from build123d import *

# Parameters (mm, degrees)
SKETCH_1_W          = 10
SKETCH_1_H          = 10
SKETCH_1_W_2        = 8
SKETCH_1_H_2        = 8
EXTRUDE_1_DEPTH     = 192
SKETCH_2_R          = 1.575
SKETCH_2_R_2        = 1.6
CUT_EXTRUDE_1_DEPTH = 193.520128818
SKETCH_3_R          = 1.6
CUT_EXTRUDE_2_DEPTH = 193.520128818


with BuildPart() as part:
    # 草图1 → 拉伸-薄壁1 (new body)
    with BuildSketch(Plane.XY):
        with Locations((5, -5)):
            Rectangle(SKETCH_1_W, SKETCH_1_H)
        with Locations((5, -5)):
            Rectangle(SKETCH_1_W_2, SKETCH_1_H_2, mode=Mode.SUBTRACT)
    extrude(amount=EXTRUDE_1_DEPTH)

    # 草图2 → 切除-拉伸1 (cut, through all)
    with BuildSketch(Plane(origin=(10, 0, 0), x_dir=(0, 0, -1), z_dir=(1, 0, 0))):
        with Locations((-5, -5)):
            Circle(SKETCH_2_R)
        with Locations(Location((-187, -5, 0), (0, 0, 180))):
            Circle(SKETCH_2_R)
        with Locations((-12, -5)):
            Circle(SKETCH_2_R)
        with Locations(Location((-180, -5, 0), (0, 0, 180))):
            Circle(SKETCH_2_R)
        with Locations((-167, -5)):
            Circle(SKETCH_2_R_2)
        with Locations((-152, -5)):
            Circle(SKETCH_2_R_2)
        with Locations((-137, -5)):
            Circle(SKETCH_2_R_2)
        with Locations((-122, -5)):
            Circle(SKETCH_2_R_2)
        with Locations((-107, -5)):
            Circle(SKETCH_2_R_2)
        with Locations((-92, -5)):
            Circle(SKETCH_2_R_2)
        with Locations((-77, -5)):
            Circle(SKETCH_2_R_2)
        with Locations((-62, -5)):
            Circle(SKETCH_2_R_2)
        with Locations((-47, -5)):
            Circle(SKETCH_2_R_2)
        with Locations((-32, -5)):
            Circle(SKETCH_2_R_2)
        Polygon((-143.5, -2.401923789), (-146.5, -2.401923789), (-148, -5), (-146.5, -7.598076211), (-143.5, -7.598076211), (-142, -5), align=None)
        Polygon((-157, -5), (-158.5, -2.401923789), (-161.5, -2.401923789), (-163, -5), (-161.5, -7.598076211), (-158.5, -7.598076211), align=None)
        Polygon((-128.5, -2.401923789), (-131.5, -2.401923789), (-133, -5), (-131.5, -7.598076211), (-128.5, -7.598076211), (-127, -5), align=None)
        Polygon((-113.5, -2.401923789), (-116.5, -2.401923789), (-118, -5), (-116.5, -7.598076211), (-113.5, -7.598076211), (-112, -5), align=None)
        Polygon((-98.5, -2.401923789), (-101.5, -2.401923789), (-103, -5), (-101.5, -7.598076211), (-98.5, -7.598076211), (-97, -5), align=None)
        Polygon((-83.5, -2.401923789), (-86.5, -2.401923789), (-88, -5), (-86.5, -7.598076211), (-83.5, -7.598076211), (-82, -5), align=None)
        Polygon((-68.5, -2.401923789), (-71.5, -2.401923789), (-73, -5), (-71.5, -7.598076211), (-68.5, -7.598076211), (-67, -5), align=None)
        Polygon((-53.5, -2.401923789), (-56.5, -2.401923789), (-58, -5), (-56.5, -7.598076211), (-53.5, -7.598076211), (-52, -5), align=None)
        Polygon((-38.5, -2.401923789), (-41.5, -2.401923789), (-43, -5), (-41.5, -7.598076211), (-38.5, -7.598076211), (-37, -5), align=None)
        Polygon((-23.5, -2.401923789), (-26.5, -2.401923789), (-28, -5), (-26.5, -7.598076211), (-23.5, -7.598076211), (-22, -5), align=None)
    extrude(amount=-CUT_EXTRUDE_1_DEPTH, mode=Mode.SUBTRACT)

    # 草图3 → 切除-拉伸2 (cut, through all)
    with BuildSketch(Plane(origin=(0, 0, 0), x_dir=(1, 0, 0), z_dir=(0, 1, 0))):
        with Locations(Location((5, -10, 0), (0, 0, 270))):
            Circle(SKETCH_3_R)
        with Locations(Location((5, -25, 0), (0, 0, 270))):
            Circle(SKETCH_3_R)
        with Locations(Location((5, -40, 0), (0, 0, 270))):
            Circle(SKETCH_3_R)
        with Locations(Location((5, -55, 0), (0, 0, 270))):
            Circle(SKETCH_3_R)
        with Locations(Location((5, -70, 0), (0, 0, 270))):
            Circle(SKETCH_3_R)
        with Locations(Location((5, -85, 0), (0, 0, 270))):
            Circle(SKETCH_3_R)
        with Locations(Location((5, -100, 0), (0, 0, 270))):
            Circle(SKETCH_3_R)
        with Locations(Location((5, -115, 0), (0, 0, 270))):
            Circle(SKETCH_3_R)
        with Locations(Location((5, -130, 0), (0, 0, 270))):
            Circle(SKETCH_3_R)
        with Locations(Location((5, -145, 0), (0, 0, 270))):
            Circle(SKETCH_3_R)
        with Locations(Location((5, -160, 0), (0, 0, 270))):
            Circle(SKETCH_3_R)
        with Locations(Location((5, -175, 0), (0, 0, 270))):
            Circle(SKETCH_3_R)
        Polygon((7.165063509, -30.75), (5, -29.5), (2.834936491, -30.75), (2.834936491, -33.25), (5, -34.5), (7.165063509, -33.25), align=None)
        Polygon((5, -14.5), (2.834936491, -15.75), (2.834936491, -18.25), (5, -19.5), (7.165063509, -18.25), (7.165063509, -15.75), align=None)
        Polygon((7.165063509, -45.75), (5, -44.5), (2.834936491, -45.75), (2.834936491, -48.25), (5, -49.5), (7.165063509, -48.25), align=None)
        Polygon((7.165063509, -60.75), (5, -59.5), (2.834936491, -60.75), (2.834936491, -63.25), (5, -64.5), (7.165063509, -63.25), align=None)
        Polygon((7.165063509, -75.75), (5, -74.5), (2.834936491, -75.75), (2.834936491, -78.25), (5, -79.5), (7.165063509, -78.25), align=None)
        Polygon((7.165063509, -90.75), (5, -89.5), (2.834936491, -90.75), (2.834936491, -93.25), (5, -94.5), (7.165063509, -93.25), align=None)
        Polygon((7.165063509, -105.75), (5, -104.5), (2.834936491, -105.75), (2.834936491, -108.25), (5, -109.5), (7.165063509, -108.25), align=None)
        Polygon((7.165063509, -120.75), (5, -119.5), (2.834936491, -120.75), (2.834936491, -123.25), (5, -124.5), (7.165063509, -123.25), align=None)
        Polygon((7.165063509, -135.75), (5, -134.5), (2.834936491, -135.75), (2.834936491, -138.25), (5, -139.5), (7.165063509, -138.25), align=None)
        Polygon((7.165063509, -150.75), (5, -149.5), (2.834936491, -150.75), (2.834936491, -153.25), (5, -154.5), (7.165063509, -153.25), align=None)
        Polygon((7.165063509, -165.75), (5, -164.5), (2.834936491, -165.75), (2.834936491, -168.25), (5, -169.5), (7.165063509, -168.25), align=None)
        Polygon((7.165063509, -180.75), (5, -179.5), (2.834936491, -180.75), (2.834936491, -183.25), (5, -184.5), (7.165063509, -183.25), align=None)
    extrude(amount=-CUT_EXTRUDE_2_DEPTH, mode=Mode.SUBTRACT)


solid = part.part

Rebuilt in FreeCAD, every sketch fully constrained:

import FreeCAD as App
import Part
import Sketcher
from FreeCAD import Vector
Q = App.Units.Quantity


def add_polygon(sketch, points):
    """Adds a closed chain of lines whose ends are joined by coincident constraints."""
    first, n = sketch.GeometryCount, len(points)
    for a, b in zip(points, points[1:] + points[:1]):
        sketch.addGeometry(Part.LineSegment(App.Vector(*a, 0), App.Vector(*b, 0)), False)
    for i in range(n):
        sketch.addConstraint(Sketcher.Constraint("Coincident", first + i, 2, first + (i + 1) % n, 1))

doc = App.newDocument("Part")
params = doc.addObject("Spreadsheet::Sheet", "Params")
for row, (alias, value) in enumerate([
    ("sketch1_width", "10 mm"),
    ("sketch1_width2", "8 mm"),
    ("pad1_length", "192 mm"),
    ("sketch2_diameter", "3.2 mm"),
    ("sketch2_diameter2", "3.15 mm"),
    ("sketch2_height", "3 mm"),
    ("sketch2_length", "3 mm"),
    ("sketch3_diameter", "3.2 mm"),
    ("sketch3_height", "2.5 mm"),
    ("sketch3_length", "2.5 mm"),
], start=1):
    params.set(f"A{row}", alias)
    params.set(f"B{row}", "=" + value)
    params.setAlias(f"B{row}", alias)

body = doc.addObject("PartDesign::Body", "Body")

# Sketch on XY plane
sketch1 = body.newObject("Sketcher::SketchObject", "Sketch")
sketch1.AttachmentSupport = (doc.getObject("XY_Plane"), [""])
sketch1.MapMode = "FlatFace"
add_polygon(sketch1, [(0, 0), (0, -10), (10, -10), (10, 0)])  # lines 0-3
add_polygon(sketch1, [(9, -9), (1, -9), (1, -1), (9, -1)])  # lines 4-7
sketch1.addConstraint([
    Sketcher.Constraint("Vertical", 0),
    Sketcher.Constraint("Horizontal", 1),
    Sketcher.Constraint("Vertical", 2),
    Sketcher.Constraint("Horizontal", 3),
    Sketcher.Constraint("Horizontal", 4),
    Sketcher.Constraint("Vertical", 5),
    Sketcher.Constraint("Horizontal", 6),
    Sketcher.Constraint("Vertical", 7),
    Sketcher.Constraint("Coincident", 3, 2, -1, 1),
    Sketcher.Constraint("Equal", 3, 0),
    Sketcher.Constraint("Equal", 6, 5),
    Sketcher.Constraint("DistanceX", 1, 1, 1, 2, Q("10 mm")),
    Sketcher.Constraint("DistanceX", 4, 2, 4, 1, Q("8 mm")),
    Sketcher.Constraint("DistanceX", -1, 1, 4, 2, Q("1 mm")),
    Sketcher.Constraint("DistanceY", 4, 2, -1, 1, Q("9 mm")),
])
sketch1.setExpression("Constraints[19]", "Params.sketch1_width")
sketch1.setExpression("Constraints[20]", "Params.sketch1_width2")
pad1 = body.newObject("PartDesign::Pad", "Pad")
pad1.Profile = sketch1
pad1.setExpression("Length", "Params.pad1_length")

# Sketch on YZ plane
sketch2 = body.newObject("Sketcher::SketchObject", "Sketch001")
sketch2.AttachmentSupport = (doc.getObject("YZ_Plane"), [""])
sketch2.MapMode = "FlatFace"
sketch2.AttachmentOffset = App.Placement(Vector(0, 0, 10), App.Rotation())
sketch2.addGeometry(Part.Circle(Vector(-5, 5, 0), Vector(0, 0, 1), 1.6), False)  # 0
sketch2.addGeometry(Part.Circle(Vector(-5, 187, 0), Vector(0, 0, 1), 1.6), False)  # 1
sketch2.addGeometry(Part.Circle(Vector(-5, 12, 0), Vector(0, 0, 1), 1.6), False)  # 2
sketch2.addGeometry(Part.Circle(Vector(-5, 180, 0), Vector(0, 0, 1), 1.6), False)  # 3
sketch2.addGeometry(Part.Circle(Vector(-5, 167, 0), Vector(0, 0, 1), 1.6), False)  # 4
sketch2.addGeometry(Part.Circle(Vector(-5, 152, 0), Vector(0, 0, 1), 1.6), False)  # 5
sketch2.addGeometry(Part.Circle(Vector(-5, 137, 0), Vector(0, 0, 1), 1.6), False)  # 6
sketch2.addGeometry(Part.Circle(Vector(-5, 122, 0), Vector(0, 0, 1), 1.6), False)  # 7
sketch2.addGeometry(Part.Circle(Vector(-5, 107, 0), Vector(0, 0, 1), 1.6), False)  # 8
sketch2.addGeometry(Part.Circle(Vector(-5, 92, 0), Vector(0, 0, 1), 1.6), False)  # 9
sketch2.addGeometry(Part.Circle(Vector(-5, 77, 0), Vector(0, 0, 1), 1.6), False)  # 10
sketch2.addGeometry(Part.Circle(Vector(-5, 62, 0), Vector(0, 0, 1), 1.6), False)  # 11
sketch2.addGeometry(Part.Circle(Vector(-5, 47, 0), Vector(0, 0, 1), 1.6), False)  # 12
sketch2.addGeometry(Part.Circle(Vector(-5, 32, 0), Vector(0, 0, 1), 1.6), False)  # 13
add_polygon(sketch2, [(-2.4, 143.5), (-2.4, 146.5), (-5, 148), (-7.6, 146.5), (-7.6, 143.5), (-5, 142)])  # lines 14-19
add_polygon(sketch2, [(-5, 157), (-2.4, 158.5), (-2.4, 161.5), (-5, 163), (-7.6, 161.5), (-7.6, 158.5)])  # lines 20-25
add_polygon(sketch2, [(-2.4, 128.5), (-2.4, 131.5), (-5, 133), (-7.6, 131.5), (-7.6, 128.5), (-5, 127)])  # lines 26-31
add_polygon(sketch2, [(-2.4, 113.5), (-2.4, 116.5), (-5, 118), (-7.6, 116.5), (-7.6, 113.5), (-5, 112)])  # lines 32-37
add_polygon(sketch2, [(-2.4, 98.5), (-2.4, 101.5), (-5, 103), (-7.6, 101.5), (-7.6, 98.5), (-5, 97)])  # lines 38-43
add_polygon(sketch2, [(-2.4, 83.5), (-2.4, 86.5), (-5, 88), (-7.6, 86.5), (-7.6, 83.5), (-5, 82)])  # lines 44-49
add_polygon(sketch2, [(-2.4, 68.5), (-2.4, 71.5), (-5, 73), (-7.6, 71.5), (-7.6, 68.5), (-5, 67)])  # lines 50-55
add_polygon(sketch2, [(-2.4, 53.5), (-2.4, 56.5), (-5, 58), (-7.6, 56.5), (-7.6, 53.5), (-5, 52)])  # lines 56-61
add_polygon(sketch2, [(-2.4, 38.5), (-2.4, 41.5), (-5, 43), (-7.6, 41.5), (-7.6, 38.5), (-5, 37)])  # lines 62-67
add_polygon(sketch2, [(-2.4, 23.5), (-2.4, 26.5), (-5, 28), (-7.6, 26.5), (-7.6, 23.5), (-5, 22)])  # lines 68-73
sketch2.addConstraint([
    Sketcher.Constraint("Vertical", 14),
    Sketcher.Constraint("Vertical", 17),
    Sketcher.Constraint("Vertical", 21),
    Sketcher.Constraint("Vertical", 24),
    Sketcher.Constraint("Vertical", 26),
    Sketcher.Constraint("Vertical", 29),
    Sketcher.Constraint("Vertical", 32),
    Sketcher.Constraint("Vertical", 35),
    Sketcher.Constraint("Vertical", 38),
    Sketcher.Constraint("Vertical", 41),
    Sketcher.Constraint("Vertical", 44),
    Sketcher.Constraint("Vertical", 47),
    Sketcher.Constraint("Vertical", 50),
    Sketcher.Constraint("Vertical", 53),
    Sketcher.Constraint("Vertical", 56),
    Sketcher.Constraint("Vertical", 59),
    Sketcher.Constraint("Vertical", 62),
    Sketcher.Constraint("Vertical", 65),
    Sketcher.Constraint("Vertical", 68),
    Sketcher.Constraint("Vertical", 71),
    Sketcher.Constraint("Equal", 0, 1),
    Sketcher.Constraint("Equal", 1, 2),
    Sketcher.Constraint("Equal", 2, 3),
    Sketcher.Constraint("Equal", 4, 5),
    Sketcher.Constraint("Equal", 5, 6),
    Sketcher.Constraint("Equal", 6, 7),
    Sketcher.Constraint("Equal", 7, 8),
    Sketcher.Constraint("Equal", 8, 9),
    Sketcher.Constraint("Equal", 9, 10),
    Sketcher.Constraint("Equal", 10, 11),
    Sketcher.Constraint("Equal", 11, 12),
    Sketcher.Constraint("Equal", 12, 13),
    Sketcher.Constraint("Parallel", 15, 18),
    Sketcher.Constraint("Parallel", 16, 19),
    Sketcher.Constraint("Parallel", 19, 20),
    Sketcher.Constraint("Parallel", 18, 22),
    Sketcher.Constraint("Parallel", 20, 23),
    Sketcher.Constraint("Parallel", 22, 25),
    Sketcher.Constraint("Parallel", 25, 27),
    Sketcher.Constraint("Parallel", 23, 28),
    Sketcher.Constraint("Parallel", 27, 30),
    Sketcher.Constraint("Parallel", 28, 31),
    Sketcher.Constraint("Parallel", 30, 33),
    Sketcher.Constraint("Parallel", 31, 34),
    Sketcher.Constraint("Parallel", 33, 36),
    Sketcher.Constraint("Parallel", 34, 37),
    Sketcher.Constraint("Parallel", 36, 39),
    Sketcher.Constraint("Parallel", 37, 40),
    Sketcher.Constraint("Parallel", 39, 42),
    Sketcher.Constraint("Parallel", 40, 43),
    Sketcher.Constraint("Parallel", 42, 45),
    Sketcher.Constraint("Parallel", 43, 46),
    Sketcher.Constraint("Parallel", 45, 48),
    Sketcher.Constraint("Parallel", 46, 49),
    Sketcher.Constraint("Parallel", 48, 51),
    Sketcher.Constraint("Parallel", 49, 52),
    Sketcher.Constraint("Parallel", 51, 54),
    Sketcher.Constraint("Parallel", 52, 55),
    Sketcher.Constraint("Parallel", 54, 57),
    Sketcher.Constraint("Parallel", 55, 58),
    Sketcher.Constraint("Parallel", 57, 60),
    Sketcher.Constraint("Parallel", 58, 61),
    Sketcher.Constraint("Parallel", 60, 63),
    Sketcher.Constraint("Parallel", 61, 64),
    Sketcher.Constraint("Parallel", 63, 66),
    Sketcher.Constraint("Parallel", 64, 67),
    Sketcher.Constraint("Parallel", 66, 69),
    Sketcher.Constraint("Parallel", 67, 70),
    Sketcher.Constraint("Parallel", 69, 72),
    Sketcher.Constraint("Parallel", 70, 73),
    Sketcher.Constraint("Horizontal", 14, 2, 16, 2),
    Sketcher.Constraint("Horizontal", 17, 2, 19, 2),
    Sketcher.Constraint("Horizontal", 21, 2, 23, 2),
    Sketcher.Constraint("Horizontal", 20, 2, 24, 2),
    Sketcher.Constraint("Horizontal", 26, 2, 28, 2),
    Sketcher.Constraint("Horizontal", 29, 2, 31, 2),
    Sketcher.Constraint("Horizontal", 32, 2, 34, 2),
    Sketcher.Constraint("Horizontal", 35, 2, 37, 2),
    Sketcher.Constraint("Horizontal", 38, 2, 40, 2),
    Sketcher.Constraint("Horizontal", 41, 2, 43, 2),
    Sketcher.Constraint("Horizontal", 44, 2, 46, 2),
    Sketcher.Constraint("Horizontal", 47, 2, 49, 2),
    Sketcher.Constraint("Horizontal", 50, 2, 52, 2),
    Sketcher.Constraint("Horizontal", 53, 2, 55, 2),
    Sketcher.Constraint("Horizontal", 56, 2, 58, 2),
    Sketcher.Constraint("Horizontal", 59, 2, 61, 2),
    Sketcher.Constraint("Horizontal", 62, 2, 64, 2),
    Sketcher.Constraint("Horizontal", 65, 2, 67, 2),
    Sketcher.Constraint("Horizontal", 68, 2, 70, 2),
    Sketcher.Constraint("Horizontal", 71, 2, 73, 2),
    Sketcher.Constraint("Vertical", 0, 3, 1, 3),
    Sketcher.Constraint("Vertical", 1, 3, 2, 3),
    Sketcher.Constraint("Vertical", 2, 3, 3, 3),
    Sketcher.Constraint("Vertical", 3, 3, 4, 3),
    Sketcher.Constraint("Vertical", 4, 3, 5, 3),
    Sketcher.Constraint("Vertical", 5, 3, 6, 3),
    Sketcher.Constraint("Vertical", 6, 3, 7, 3),
    Sketcher.Constraint("Vertical", 7, 3, 8, 3),
    Sketcher.Constraint("Vertical", 8, 3, 9, 3),
    Sketcher.Constraint("Vertical", 9, 3, 10, 3),
    Sketcher.Constraint("Vertical", 10, 3, 11, 3),
    Sketcher.Constraint("Vertical", 11, 3, 12, 3),
    Sketcher.Constraint("Vertical", 12, 3, 13, 3),
    Sketcher.Constraint("Vertical", 13, 3, 15, 2),
    Sketcher.Constraint("Vertical", 15, 2, 18, 2),
    Sketcher.Constraint("Vertical", 19, 2, 20, 2),
    Sketcher.Constraint("Vertical", 18, 2, 22, 2),
    Sketcher.Constraint("Vertical", 21, 2, 26, 2),
    Sketcher.Constraint("Vertical", 25, 2, 27, 2),
    Sketcher.Constraint("Vertical", 31, 2, 32, 2),
    Sketcher.Constraint("Vertical", 30, 2, 33, 2),
    Sketcher.Constraint("Vertical", 37, 2, 38, 2),
    Sketcher.Constraint("Vertical", 36, 2, 39, 2),
    Sketcher.Constraint("Vertical", 43, 2, 44, 2),
    Sketcher.Constraint("Vertical", 42, 2, 45, 2),
    Sketcher.Constraint("Vertical", 49, 2, 50, 2),
    Sketcher.Constraint("Vertical", 48, 2, 51, 2),
    Sketcher.Constraint("Vertical", 55, 2, 56, 2),
    Sketcher.Constraint("Vertical", 54, 2, 57, 2),
    Sketcher.Constraint("Vertical", 61, 2, 62, 2),
    Sketcher.Constraint("Vertical", 60, 2, 63, 2),
    Sketcher.Constraint("Vertical", 67, 2, 68, 2),
    Sketcher.Constraint("Vertical", 66, 2, 69, 2),
    Sketcher.Constraint("Equal", 17, 21),
    Sketcher.Constraint("Equal", 24, 26),
    Sketcher.Constraint("Equal", 29, 32),
    Sketcher.Constraint("Equal", 35, 38),
    Sketcher.Constraint("Equal", 41, 44),
    Sketcher.Constraint("Equal", 47, 50),
    Sketcher.Constraint("Equal", 53, 56),
    Sketcher.Constraint("Equal", 59, 62),
    Sketcher.Constraint("Equal", 65, 68),
    Sketcher.Constraint("Diameter", 4, Q("3.2 mm")),
    Sketcher.Constraint("Diameter", 0, Q("3.15 mm")),
    Sketcher.Constraint("DistanceY", 14, 1, 14, 2, Q("3 mm")),
    Sketcher.Constraint("Angle", 15, Q("150 deg")),
    Sketcher.Constraint("Distance", 15, Q("3 mm")),
    Sketcher.Constraint("DistanceX", 0, 3, -1, 1, Q("5 mm")),
    Sketcher.Constraint("DistanceY", -1, 1, 0, 3, Q("5 mm")),
    Sketcher.Constraint("DistanceY", -1, 1, 1, 3, Q("187 mm")),
    Sketcher.Constraint("DistanceY", -1, 1, 2, 3, Q("12 mm")),
    Sketcher.Constraint("DistanceY", -1, 1, 3, 3, Q("180 mm")),
    Sketcher.Constraint("DistanceY", -1, 1, 4, 3, Q("167 mm")),
    Sketcher.Constraint("DistanceY", -1, 1, 5, 3, Q("152 mm")),
    Sketcher.Constraint("DistanceY", -1, 1, 6, 3, Q("137 mm")),
    Sketcher.Constraint("DistanceY", -1, 1, 7, 3, Q("122 mm")),
    Sketcher.Constraint("DistanceY", -1, 1, 8, 3, Q("107 mm")),
    Sketcher.Constraint("DistanceY", -1, 1, 9, 3, Q("92 mm")),
    Sketcher.Constraint("DistanceY", -1, 1, 10, 3, Q("77 mm")),
    Sketcher.Constraint("DistanceY", -1, 1, 11, 3, Q("62 mm")),
    Sketcher.Constraint("DistanceY", -1, 1, 12, 3, Q("47 mm")),
    Sketcher.Constraint("DistanceY", -1, 1, 13, 3, Q("32 mm")),
    Sketcher.Constraint("DistanceY", -1, 1, 15, 2, Q("148 mm")),
    Sketcher.Constraint("DistanceY", -1, 1, 22, 2, Q("163 mm")),
    Sketcher.Constraint("DistanceY", -1, 1, 27, 2, Q("133 mm")),
    Sketcher.Constraint("DistanceY", -1, 1, 33, 2, Q("118 mm")),
    Sketcher.Constraint("DistanceY", -1, 1, 39, 2, Q("103 mm")),
    Sketcher.Constraint("DistanceY", -1, 1, 45, 2, Q("88 mm")),
    Sketcher.Constraint("DistanceY", -1, 1, 51, 2, Q("73 mm")),
    Sketcher.Constraint("DistanceY", -1, 1, 57, 2, Q("58 mm")),
    Sketcher.Constraint("DistanceY", -1, 1, 63, 2, Q("43 mm")),
    Sketcher.Constraint("DistanceY", -1, 1, 69, 2, Q("28 mm")),
])
sketch2.setExpression("Constraints[192]", "Params.sketch2_diameter")
sketch2.setExpression("Constraints[193]", "Params.sketch2_diameter2")
sketch2.setExpression("Constraints[194]", "Params.sketch2_height")
sketch2.setExpression("Constraints[196]", "Params.sketch2_length")
pocket1 = body.newObject("PartDesign::Pocket", "Pocket")
pocket1.Profile = sketch2
pocket1.Type = "ThroughAll"

# Sketch on XZ plane
sketch3 = body.newObject("Sketcher::SketchObject", "Sketch002")
sketch3.AttachmentSupport = (doc.getObject("XZ_Plane"), [""])
sketch3.MapMode = "FlatFace"
sketch3.addGeometry(Part.Circle(Vector(5, 10, 0), Vector(0, 0, 1), 1.6), False)  # 0
sketch3.addGeometry(Part.Circle(Vector(5, 25, 0), Vector(0, 0, 1), 1.6), False)  # 1
sketch3.addGeometry(Part.Circle(Vector(5, 40, 0), Vector(0, 0, 1), 1.6), False)  # 2
sketch3.addGeometry(Part.Circle(Vector(5, 55, 0), Vector(0, 0, 1), 1.6), False)  # 3
sketch3.addGeometry(Part.Circle(Vector(5, 70, 0), Vector(0, 0, 1), 1.6), False)  # 4
sketch3.addGeometry(Part.Circle(Vector(5, 85, 0), Vector(0, 0, 1), 1.6), False)  # 5
sketch3.addGeometry(Part.Circle(Vector(5, 100, 0), Vector(0, 0, 1), 1.6), False)  # 6
sketch3.addGeometry(Part.Circle(Vector(5, 115, 0), Vector(0, 0, 1), 1.6), False)  # 7
sketch3.addGeometry(Part.Circle(Vector(5, 130, 0), Vector(0, 0, 1), 1.6), False)  # 8
sketch3.addGeometry(Part.Circle(Vector(5, 145, 0), Vector(0, 0, 1), 1.6), False)  # 9
sketch3.addGeometry(Part.Circle(Vector(5, 160, 0), Vector(0, 0, 1), 1.6), False)  # 10
sketch3.addGeometry(Part.Circle(Vector(5, 175, 0), Vector(0, 0, 1), 1.6), False)  # 11
add_polygon(sketch3, [(7.2, 30.8), (5, 29.5), (2.8, 30.8), (2.8, 33.2), (5, 34.5), (7.2, 33.2)])  # lines 12-17
add_polygon(sketch3, [(5, 14.5), (2.8, 15.8), (2.8, 18.2), (5, 19.5), (7.2, 18.2), (7.2, 15.8)])  # lines 18-23
add_polygon(sketch3, [(7.2, 45.8), (5, 44.5), (2.8, 45.8), (2.8, 48.2), (5, 49.5), (7.2, 48.2)])  # lines 24-29
add_polygon(sketch3, [(7.2, 60.8), (5, 59.5), (2.8, 60.8), (2.8, 63.2), (5, 64.5), (7.2, 63.2)])  # lines 30-35
add_polygon(sketch3, [(7.2, 75.8), (5, 74.5), (2.8, 75.8), (2.8, 78.2), (5, 79.5), (7.2, 78.2)])  # lines 36-41
add_polygon(sketch3, [(7.2, 90.8), (5, 89.5), (2.8, 90.8), (2.8, 93.2), (5, 94.5), (7.2, 93.2)])  # lines 42-47
add_polygon(sketch3, [(7.2, 105.8), (5, 104.5), (2.8, 105.8), (2.8, 108.2), (5, 109.5), (7.2, 108.2)])  # lines 48-53
add_polygon(sketch3, [(7.2, 120.8), (5, 119.5), (2.8, 120.8), (2.8, 123.2), (5, 124.5), (7.2, 123.2)])  # lines 54-59
add_polygon(sketch3, [(7.2, 135.8), (5, 134.5), (2.8, 135.8), (2.8, 138.2), (5, 139.5), (7.2, 138.2)])  # lines 60-65
add_polygon(sketch3, [(7.2, 150.8), (5, 149.5), (2.8, 150.8), (2.8, 153.2), (5, 154.5), (7.2, 153.2)])  # lines 66-71
add_polygon(sketch3, [(7.2, 165.8), (5, 164.5), (2.8, 165.8), (2.8, 168.2), (5, 169.5), (7.2, 168.2)])  # lines 72-77
add_polygon(sketch3, [(7.2, 180.8), (5, 179.5), (2.8, 180.8), (2.8, 183.2), (5, 184.5), (7.2, 183.2)])  # lines 78-83
sketch3.addConstraint([
    Sketcher.Constraint("Vertical", 14),
    Sketcher.Constraint("Vertical", 17),
    Sketcher.Constraint("Vertical", 19),
    Sketcher.Constraint("Vertical", 22),
    Sketcher.Constraint("Vertical", 26),
    Sketcher.Constraint("Vertical", 29),
    Sketcher.Constraint("Vertical", 32),
    Sketcher.Constraint("Vertical", 35),
    Sketcher.Constraint("Vertical", 38),
    Sketcher.Constraint("Vertical", 41),
    Sketcher.Constraint("Vertical", 44),
    Sketcher.Constraint("Vertical", 47),
    Sketcher.Constraint("Vertical", 50),
    Sketcher.Constraint("Vertical", 53),
    Sketcher.Constraint("Vertical", 56),
    Sketcher.Constraint("Vertical", 59),
    Sketcher.Constraint("Vertical", 62),
    Sketcher.Constraint("Vertical", 65),
    Sketcher.Constraint("Vertical", 68),
    Sketcher.Constraint("Vertical", 71),
    Sketcher.Constraint("Vertical", 74),
    Sketcher.Constraint("Vertical", 77),
    Sketcher.Constraint("Vertical", 80),
    Sketcher.Constraint("Vertical", 83),
    Sketcher.Constraint("Equal", 0, 1),
    Sketcher.Constraint("Equal", 1, 2),
    Sketcher.Constraint("Equal", 2, 3),
    Sketcher.Constraint("Equal", 3, 4),
    Sketcher.Constraint("Equal", 4, 5),
    Sketcher.Constraint("Equal", 5, 6),
    Sketcher.Constraint("Equal", 6, 7),
    Sketcher.Constraint("Equal", 7, 8),
    Sketcher.Constraint("Equal", 8, 9),
    Sketcher.Constraint("Equal", 9, 10),
    Sketcher.Constraint("Equal", 10, 11),
    Sketcher.Constraint("Parallel", 12, 15),
    Sketcher.Constraint("Parallel", 13, 16),
    Sketcher.Constraint("Parallel", 16, 18),
    Sketcher.Constraint("Parallel", 15, 20),
    Sketcher.Constraint("Parallel", 18, 21),
    Sketcher.Constraint("Parallel", 20, 23),
    Sketcher.Constraint("Parallel", 23, 24),
    Sketcher.Constraint("Parallel", 21, 25),
    Sketcher.Constraint("Parallel", 24, 27),
    Sketcher.Constraint("Parallel", 25, 28),
    Sketcher.Constraint("Parallel", 27, 30),
    Sketcher.Constraint("Parallel", 28, 31),
    Sketcher.Constraint("Parallel", 30, 33),
    Sketcher.Constraint("Parallel", 31, 34),
    Sketcher.Constraint("Parallel", 33, 36),
    Sketcher.Constraint("Parallel", 34, 37),
    Sketcher.Constraint("Parallel", 36, 39),
    Sketcher.Constraint("Parallel", 37, 40),
    Sketcher.Constraint("Parallel", 39, 42),
    Sketcher.Constraint("Parallel", 40, 43),
    Sketcher.Constraint("Parallel", 42, 45),
    Sketcher.Constraint("Parallel", 43, 46),
    Sketcher.Constraint("Parallel", 45, 48),
    Sketcher.Constraint("Parallel", 46, 49),
    Sketcher.Constraint("Parallel", 48, 51),
    Sketcher.Constraint("Parallel", 49, 52),
    Sketcher.Constraint("Parallel", 51, 54),
    Sketcher.Constraint("Parallel", 52, 55),
    Sketcher.Constraint("Parallel", 54, 57),
    Sketcher.Constraint("Parallel", 55, 58),
    Sketcher.Constraint("Parallel", 57, 60),
    Sketcher.Constraint("Parallel", 58, 61),
    Sketcher.Constraint("Parallel", 60, 63),
    Sketcher.Constraint("Parallel", 61, 64),
    Sketcher.Constraint("Parallel", 63, 66),
    Sketcher.Constraint("Parallel", 64, 67),
    Sketcher.Constraint("Parallel", 66, 69),
    Sketcher.Constraint("Parallel", 67, 70),
    Sketcher.Constraint("Parallel", 69, 72),
    Sketcher.Constraint("Parallel", 70, 73),
    Sketcher.Constraint("Parallel", 72, 75),
    Sketcher.Constraint("Parallel", 73, 76),
    Sketcher.Constraint("Parallel", 75, 78),
    Sketcher.Constraint("Parallel", 76, 79),
    Sketcher.Constraint("Parallel", 78, 81),
    Sketcher.Constraint("Parallel", 79, 82),
    Sketcher.Constraint("Horizontal", 14, 2, 16, 2),
    Sketcher.Constraint("Horizontal", 13, 2, 17, 2),
    Sketcher.Constraint("Horizontal", 19, 2, 21, 2),
    Sketcher.Constraint("Horizontal", 18, 2, 22, 2),
    Sketcher.Constraint("Horizontal", 26, 2, 28, 2),
    Sketcher.Constraint("Horizontal", 25, 2, 29, 2),
    Sketcher.Constraint("Horizontal", 32, 2, 34, 2),
    Sketcher.Constraint("Horizontal", 31, 2, 35, 2),
    Sketcher.Constraint("Horizontal", 38, 2, 40, 2),
    Sketcher.Constraint("Horizontal", 37, 2, 41, 2),
    Sketcher.Constraint("Horizontal", 44, 2, 46, 2),
    Sketcher.Constraint("Horizontal", 43, 2, 47, 2),
    Sketcher.Constraint("Horizontal", 50, 2, 52, 2),
    Sketcher.Constraint("Horizontal", 49, 2, 53, 2),
    Sketcher.Constraint("Horizontal", 56, 2, 58, 2),
    Sketcher.Constraint("Horizontal", 55, 2, 59, 2),
    Sketcher.Constraint("Horizontal", 62, 2, 64, 2),
    Sketcher.Constraint("Horizontal", 61, 2, 65, 2),
    Sketcher.Constraint("Horizontal", 68, 2, 70, 2),
    Sketcher.Constraint("Horizontal", 67, 2, 71, 2),
    Sketcher.Constraint("Horizontal", 74, 2, 76, 2),
    Sketcher.Constraint("Horizontal", 73, 2, 77, 2),
    Sketcher.Constraint("Horizontal", 80, 2, 82, 2),
    Sketcher.Constraint("Horizontal", 79, 2, 83, 2),
    Sketcher.Constraint("Vertical", 0, 3, 1, 3),
    Sketcher.Constraint("Vertical", 1, 3, 2, 3),
    Sketcher.Constraint("Vertical", 2, 3, 3, 3),
    Sketcher.Constraint("Vertical", 3, 3, 4, 3),
    Sketcher.Constraint("Vertical", 4, 3, 5, 3),
    Sketcher.Constraint("Vertical", 5, 3, 6, 3),
    Sketcher.Constraint("Vertical", 6, 3, 7, 3),
    Sketcher.Constraint("Vertical", 7, 3, 8, 3),
    Sketcher.Constraint("Vertical", 8, 3, 9, 3),
    Sketcher.Constraint("Vertical", 9, 3, 10, 3),
    Sketcher.Constraint("Vertical", 10, 3, 11, 3),
    Sketcher.Constraint("Vertical", 11, 3, 12, 2),
    Sketcher.Constraint("Vertical", 12, 2, 15, 2),
    Sketcher.Constraint("Vertical", 14, 2, 18, 2),
    Sketcher.Constraint("Vertical", 15, 2, 20, 2),
    Sketcher.Constraint("Vertical", 23, 2, 24, 2),
    Sketcher.Constraint("Vertical", 19, 2, 25, 2),
    Sketcher.Constraint("Vertical", 27, 2, 30, 2),
    Sketcher.Constraint("Vertical", 26, 2, 31, 2),
    Sketcher.Constraint("Vertical", 33, 2, 36, 2),
    Sketcher.Constraint("Vertical", 32, 2, 37, 2),
    Sketcher.Constraint("Vertical", 39, 2, 42, 2),
    Sketcher.Constraint("Vertical", 38, 2, 43, 2),
    Sketcher.Constraint("Vertical", 45, 2, 48, 2),
    Sketcher.Constraint("Vertical", 44, 2, 49, 2),
    Sketcher.Constraint("Vertical", 51, 2, 54, 2),
    Sketcher.Constraint("Vertical", 50, 2, 55, 2),
    Sketcher.Constraint("Vertical", 57, 2, 60, 2),
    Sketcher.Constraint("Vertical", 56, 2, 61, 2),
    Sketcher.Constraint("Vertical", 63, 2, 66, 2),
    Sketcher.Constraint("Vertical", 62, 2, 67, 2),
    Sketcher.Constraint("Vertical", 69, 2, 72, 2),
    Sketcher.Constraint("Vertical", 68, 2, 73, 2),
    Sketcher.Constraint("Vertical", 75, 2, 78, 2),
    Sketcher.Constraint("Vertical", 74, 2, 79, 2),
    Sketcher.Constraint("Equal", 17, 19),
    Sketcher.Constraint("Equal", 22, 26),
    Sketcher.Constraint("Equal", 29, 32),
    Sketcher.Constraint("Equal", 35, 38),
    Sketcher.Constraint("Equal", 41, 44),
    Sketcher.Constraint("Equal", 47, 50),
    Sketcher.Constraint("Equal", 53, 56),
    Sketcher.Constraint("Equal", 59, 62),
    Sketcher.Constraint("Equal", 65, 68),
    Sketcher.Constraint("Equal", 71, 74),
    Sketcher.Constraint("Equal", 77, 80),
    Sketcher.Constraint("Diameter", 0, Q("3.2 mm")),
    Sketcher.Constraint("Angle", 12, Q("-150 deg")),
    Sketcher.Constraint("DistanceY", 14, 1, 14, 2, Q("2.5 mm")),
    Sketcher.Constraint("DistanceX", -1, 1, 0, 3, Q("5 mm")),
    Sketcher.Constraint("DistanceY", -1, 1, 0, 3, Q("10 mm")),
    Sketcher.Constraint("DistanceY", -1, 1, 1, 3, Q("25 mm")),
    Sketcher.Constraint("DistanceY", -1, 1, 2, 3, Q("40 mm")),
    Sketcher.Constraint("DistanceY", -1, 1, 3, 3, Q("55 mm")),
    Sketcher.Constraint("DistanceY", -1, 1, 4, 3, Q("70 mm")),
    Sketcher.Constraint("DistanceY", -1, 1, 5, 3, Q("85 mm")),
    Sketcher.Constraint("DistanceY", -1, 1, 6, 3, Q("100 mm")),
    Sketcher.Constraint("DistanceY", -1, 1, 7, 3, Q("115 mm")),
    Sketcher.Constraint("DistanceY", -1, 1, 8, 3, Q("130 mm")),
    Sketcher.Constraint("DistanceY", -1, 1, 9, 3, Q("145 mm")),
    Sketcher.Constraint("DistanceY", -1, 1, 10, 3, Q("160 mm")),
    Sketcher.Constraint("DistanceY", -1, 1, 11, 3, Q("175 mm")),
    Sketcher.Constraint("Distance", 12, Q("2.5 mm")),
    Sketcher.Constraint("DistanceY", -1, 1, 12, 2, Q("29.5 mm")),
    Sketcher.Constraint("DistanceY", -1, 1, 20, 2, Q("19.5 mm")),
    Sketcher.Constraint("DistanceY", -1, 1, 24, 2, Q("44.5 mm")),
    Sketcher.Constraint("DistanceY", -1, 1, 30, 2, Q("59.5 mm")),
    Sketcher.Constraint("DistanceY", -1, 1, 36, 2, Q("74.5 mm")),
    Sketcher.Constraint("DistanceY", -1, 1, 42, 2, Q("89.5 mm")),
    Sketcher.Constraint("DistanceY", -1, 1, 48, 2, Q("104.5 mm")),
    Sketcher.Constraint("DistanceY", -1, 1, 54, 2, Q("119.5 mm")),
    Sketcher.Constraint("DistanceY", -1, 1, 60, 2, Q("134.5 mm")),
    Sketcher.Constraint("DistanceY", -1, 1, 66, 2, Q("149.5 mm")),
    Sketcher.Constraint("DistanceY", -1, 1, 72, 2, Q("164.5 mm")),
    Sketcher.Constraint("DistanceY", -1, 1, 78, 2, Q("179.5 mm")),
])
sketch3.setExpression("Constraints[223]", "Params.sketch3_diameter")
sketch3.setExpression("Constraints[225]", "Params.sketch3_height")
sketch3.setExpression("Constraints[239]", "Params.sketch3_length")
pocket2 = body.newObject("PartDesign::Pocket", "Pocket001")
pocket2.Profile = sketch3
pocket2.Type = "ThroughAll"
pocket2.Reversed = True

doc.recompute()
